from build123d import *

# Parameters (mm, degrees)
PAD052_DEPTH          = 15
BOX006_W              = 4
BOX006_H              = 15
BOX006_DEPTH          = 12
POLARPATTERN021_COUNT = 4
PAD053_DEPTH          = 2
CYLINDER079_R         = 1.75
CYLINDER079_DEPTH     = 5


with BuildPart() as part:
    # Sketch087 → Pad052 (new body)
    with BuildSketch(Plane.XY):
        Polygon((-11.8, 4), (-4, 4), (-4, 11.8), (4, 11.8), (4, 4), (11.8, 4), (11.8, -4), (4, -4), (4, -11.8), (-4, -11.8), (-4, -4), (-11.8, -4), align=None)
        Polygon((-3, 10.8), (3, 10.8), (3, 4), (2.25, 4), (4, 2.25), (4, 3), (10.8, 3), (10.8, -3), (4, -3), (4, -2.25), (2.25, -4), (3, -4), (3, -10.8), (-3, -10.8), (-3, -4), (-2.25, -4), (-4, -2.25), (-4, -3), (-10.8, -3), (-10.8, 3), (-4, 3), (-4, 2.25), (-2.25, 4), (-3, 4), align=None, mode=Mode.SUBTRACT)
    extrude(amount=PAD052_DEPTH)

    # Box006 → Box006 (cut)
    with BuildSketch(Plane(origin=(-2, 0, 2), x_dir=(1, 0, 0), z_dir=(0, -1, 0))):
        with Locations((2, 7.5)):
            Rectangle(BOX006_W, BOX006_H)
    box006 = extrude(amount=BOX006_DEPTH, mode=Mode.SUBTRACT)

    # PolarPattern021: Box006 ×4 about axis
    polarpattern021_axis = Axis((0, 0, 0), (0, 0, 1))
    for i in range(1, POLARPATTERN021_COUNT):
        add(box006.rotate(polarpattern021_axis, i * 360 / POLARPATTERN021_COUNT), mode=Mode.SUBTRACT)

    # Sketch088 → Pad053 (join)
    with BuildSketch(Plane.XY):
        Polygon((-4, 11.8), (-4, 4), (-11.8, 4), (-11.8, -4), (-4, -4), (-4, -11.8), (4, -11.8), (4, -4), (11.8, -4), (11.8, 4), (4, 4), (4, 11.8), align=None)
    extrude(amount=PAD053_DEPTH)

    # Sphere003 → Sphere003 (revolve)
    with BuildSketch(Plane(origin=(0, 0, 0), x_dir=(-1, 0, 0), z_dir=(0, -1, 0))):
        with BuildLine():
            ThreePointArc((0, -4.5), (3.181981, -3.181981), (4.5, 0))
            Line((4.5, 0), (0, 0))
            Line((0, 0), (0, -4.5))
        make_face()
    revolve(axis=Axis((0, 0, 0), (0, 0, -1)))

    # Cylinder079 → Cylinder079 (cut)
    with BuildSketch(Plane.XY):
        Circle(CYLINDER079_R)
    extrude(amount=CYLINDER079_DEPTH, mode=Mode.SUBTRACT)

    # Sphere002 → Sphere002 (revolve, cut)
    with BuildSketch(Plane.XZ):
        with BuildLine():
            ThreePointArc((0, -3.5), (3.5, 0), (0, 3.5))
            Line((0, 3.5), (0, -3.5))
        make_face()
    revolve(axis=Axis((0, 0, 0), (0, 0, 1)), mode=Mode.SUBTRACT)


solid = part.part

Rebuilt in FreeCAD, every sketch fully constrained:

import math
import FreeCAD as App
import Part
import Sketcher
from FreeCAD import Vector


def add_polygon(sketch, points):
    """Adds a closed chain of lines whose ends are joined by coincident constraints."""
    first, n = sketch.GeometryCount, len(points)
    for a, b in zip(points, points[1:] + points[:1]):
        sketch.addGeometry(Part.LineSegment(App.Vector(*a, 0), App.Vector(*b, 0)), False)
    for i in range(n):
        sketch.addConstraint(Sketcher.Constraint("Coincident", first + i, 2, first + (i + 1) % n, 1))

doc = App.newDocument("Part")
body = doc.addObject("PartDesign::Body", "Body")

# Sketch on XY plane
sketch1 = doc.addObject("Sketcher::SketchObject", "Sketch")
body.addObject(sketch1)
sketch1.AttachmentSupport = (doc.XY_Plane, [""])
sketch1.MapMode = "FlatFace"
add_polygon(sketch1, [(-4, 4), (-11.8, 4), (-11.8, -4), (-4, -4), (-4, -11.8), (4, -11.8), (4, -4), (11.8, -4), (11.8, 4), (4, 4), (4, 11.8), (-4, 11.8)])  # lines 0-11
add_polygon(sketch1, [(-3, 10.8), (3, 10.8), (3, 4), (2.2, 4), (4, 2.2), (4, 3), (10.8, 3), (10.8, -3), (4, -3), (4, -2.2), (2.2, -4), (3, -4), (3, -10.8), (-3, -10.8), (-3, -4), (-2.2, -4), (-4, -2.2), (-4, -3), (-10.8, -3), (-10.8, 3), (-4, 3), (-4, 2.2), (-2.2, 4), (-3, 4)])  # lines 12-35
sketch1.addConstraint(Sketcher.Constraint("Horizontal", 0))
sketch1.addConstraint(Sketcher.Constraint("Vertical", 1))
sketch1.addConstraint(Sketcher.Constraint("Horizontal", 2))
sketch1.addConstraint(Sketcher.Constraint("Vertical", 3))
sketch1.addConstraint(Sketcher.Constraint("Horizontal", 4))
sketch1.addConstraint(Sketcher.Constraint("Vertical", 5))
sketch1.addConstraint(Sketcher.Constraint("Horizontal", 6))
sketch1.addConstraint(Sketcher.Constraint("Vertical", 7))
sketch1.addConstraint(Sketcher.Constraint("Horizontal", 8))
sketch1.addConstraint(Sketcher.Constraint("Vertical", 9))
sketch1.addConstraint(Sketcher.Constraint("Horizontal", 10))
sketch1.addConstraint(Sketcher.Constraint("Vertical", 11))
sketch1.addConstraint(Sketcher.Constraint("Horizontal", 12))
sketch1.addConstraint(Sketcher.Constraint("Vertical", 13))
sketch1.addConstraint(Sketcher.Constraint("Horizontal", 14))
sketch1.addConstraint(Sketcher.Constraint("Vertical", 16))
sketch1.addConstraint(Sketcher.Constraint("Horizontal", 17))
sketch1.addConstraint(Sketcher.Constraint("Vertical", 18))
sketch1.addConstraint(Sketcher.Constraint("Horizontal", 19))
sketch1.addConstraint(Sketcher.Constraint("Vertical", 20))
sketch1.addConstraint(Sketcher.Constraint("Horizontal", 22))
sketch1.addConstraint(Sketcher.Constraint("Vertical", 23))
sketch1.addConstraint(Sketcher.Constraint("Horizontal", 24))
sketch1.addConstraint(Sketcher.Constraint("Vertical", 25))
sketch1.addConstraint(Sketcher.Constraint("Horizontal", 26))
sketch1.addConstraint(Sketcher.Constraint("Vertical", 28))
sketch1.addConstraint(Sketcher.Constraint("Horizontal", 29))
sketch1.addConstraint(Sketcher.Constraint("Vertical", 30))
sketch1.addConstraint(Sketcher.Constraint("Horizontal", 31))
sketch1.addConstraint(Sketcher.Constraint("Vertical", 32))
sketch1.addConstraint(Sketcher.Constraint("Horizontal", 34))
sketch1.addConstraint(Sketcher.Constraint("Vertical", 35))
sketch1.addConstraint(Sketcher.Constraint("Symmetric", 0, 2, 6, 2, -1, 1))
sketch1.addConstraint(Sketcher.Constraint("Symmetric", 2, 2, 8, 2, -1, 1))
sketch1.addConstraint(Sketcher.Constraint("Symmetric", 4, 2, 10, 2, -1, 1))
sketch1.addConstraint(Sketcher.Constraint("Symmetric", 12, 2, 24, 2, -1, 1))
sketch1.addConstraint(Sketcher.Constraint("Symmetric", 14, 2, 26, 2, -1, 1))
sketch1.addConstraint(Sketcher.Constraint("Symmetric", 15, 2, 27, 2, -1, 1))
sketch1.addConstraint(Sketcher.Constraint("Symmetric", 17, 2, 29, 2, -1, 1))
sketch1.addConstraint(Sketcher.Constraint("Symmetric", 19, 2, 31, 2, -1, 1))
sketch1.addConstraint(Sketcher.Constraint("Symmetric", 21, 2, 33, 2, -1, 1))
sketch1.addConstraint(Sketcher.Constraint("Symmetric", 2, 2, 5, 2, -2))
sketch1.addConstraint(Sketcher.Constraint("Symmetric", 22, 2, 25, 2, -2))
sketch1.addConstraint(Sketcher.Constraint("Symmetric", 20, 2, 27, 2, -2))
sketch1.addConstraint(Sketcher.Constraint("Perpendicular", 15, 21))
sketch1.addConstraint(Sketcher.Constraint("Perpendicular", 27, 33))
sketch1.addConstraint(Sketcher.Constraint("Horizontal", 11, 2, 13, 2))
sketch1.addConstraint(Sketcher.Constraint("Horizontal", 19, 2, 28, 2))
sketch1.addConstraint(Sketcher.Constraint("Vertical", 9, 2, 15, 2))
sketch1.addConstraint(Sketcher.Constraint("Vertical", 14, 2, 21, 2))
sketch1.addConstraint(Sketcher.Constraint("Vertical", 25, 2, 34, 2))
sketch1.addConstraint(Sketcher.Constraint("Equal", 10, 1))
sketch1.addConstraint(Sketcher.Constraint("Equal", 8, 3))
sketch1.addConstraint(Sketcher.Constraint("Equal", 31, 13))
sketch1.addConstraint(Sketcher.Constraint("Equal", 34, 16))
sketch1.addConstraint(Sketcher.Constraint("DistanceX", 4, 1, 4, 2, 8.0))
sketch1.addConstraint(Sketcher.Constraint("DistanceX", 12, 1, 12, 2, 6.0))
sketch1.addConstraint(Sketcher.Constraint("DistanceX", 0, 2, 0, 1, 7.8))
sketch1.addConstraint(Sketcher.Constraint("DistanceX", 17, 1, 17, 2, 6.8))
sketch1.addConstraint(Sketcher.Constraint("DistanceX", 14, 2, 14, 1, 0.75))
pad1 = doc.addObject("PartDesign::Pad", "Pad")
body.addObject(pad1)
pad1.Profile = sketch1
pad1.Length = 15

# Sketch on XZ plane
sketch2 = doc.addObject("Sketcher::SketchObject", "Sketch001")
body.addObject(sketch2)
sketch2.AttachmentSupport = (doc.XZ_Plane, [""])
sketch2.MapMode = "FlatFace"
add_polygon(sketch2, [(-2, 17), (-2, 2), (2, 2), (2, 17)])  # lines 0-3
sketch2.addConstraint(Sketcher.Constraint("Vertical", 0))
sketch2.addConstraint(Sketcher.Constraint("Horizontal", 1))
sketch2.addConstraint(Sketcher.Constraint("Vertical", 2))
sketch2.addConstraint(Sketcher.Constraint("Horizontal", 3))
sketch2.addConstraint(Sketcher.Constraint("DistanceX", 1, 1, 1, 2, 4.0))
sketch2.addConstraint(Sketcher.Constraint("DistanceY", 0, 2, 0, 1, 15.0))
sketch2.addConstraint(Sketcher.Constraint("DistanceX", 0, 2, -1, 1, 2.0))
sketch2.addConstraint(Sketcher.Constraint("DistanceY", -1, 1, 0, 2, 2.0))
pocket1 = doc.addObject("PartDesign::Pocket", "Pocket")
body.addObject(pocket1)
pocket1.Profile = sketch2
pocket1.Length = 12
pocket1.Reversed = True
doc.recompute()

polarpattern = doc.addObject("PartDesign::PolarPattern", "PolarPattern")
body.addObject(polarpattern)
polarpattern.Originals = [pocket1]
polarpattern.Axis = (doc.Z_Axis, [""])
polarpattern.Angle = 360
polarpattern.Occurrences = 4
body.Tip = polarpattern

# Sketch on XY plane
sketch3 = doc.addObject("Sketcher::SketchObject", "Sketch002")
body.addObject(sketch3)
sketch3.AttachmentSupport = (doc.XY_Plane, [""])
sketch3.MapMode = "FlatFace"
add_polygon(sketch3, [(-4, 12), (-4, 4), (-12, 4), (-12, -4), (-4, -4), (-4, -12), (4, -12), (4, -4), (12, -4), (12, 4), (4, 4), (4, 12)])  # lines 0-11
sketch3.addConstraint(Sketcher.Constraint("Vertical", 0))
sketch3.addConstraint(Sketcher.Constraint("Horizontal", 1))
sketch3.addConstraint(Sketcher.Constraint("Vertical", 2))
sketch3.addConstraint(Sketcher.Constraint("Horizontal", 3))
sketch3.addConstraint(Sketcher.Constraint("Vertical", 4))
sketch3.addConstraint(Sketcher.Constraint("Horizontal", 5))
sketch3.addConstraint(Sketcher.Constraint("Vertical", 6))
sketch3.addConstraint(Sketcher.Constraint("Horizontal", 7))
sketch3.addConstraint(Sketcher.Constraint("Vertical", 8))
sketch3.addConstraint(Sketcher.Constraint("Horizontal", 9))
sketch3.addConstraint(Sketcher.Constraint("Vertical", 10))
sketch3.addConstraint(Sketcher.Constraint("Horizontal", 11))
sketch3.addConstraint(Sketcher.Constraint("Symmetric", 0, 2, 6, 2, -1, 1))
sketch3.addConstraint(Sketcher.Constraint("Symmetric", 2, 2, 8, 2, -1, 1))
sketch3.addConstraint(Sketcher.Constraint("Symmetric", 4, 2, 10, 2, -1, 1))
sketch3.addConstraint(Sketcher.Constraint("Symmetric", 3, 2, 6, 2, -2))
sketch3.addConstraint(Sketcher.Constraint("Equal", 9, 0))
sketch3.addConstraint(Sketcher.Constraint("Equal", 11, 2))
sketch3.addConstraint(Sketcher.Constraint("DistanceX", 5, 1, 5, 2, 8.0))
sketch3.addConstraint(Sketcher.Constraint("DistanceX", 1, 2, 1, 1, 7.8))
pad2 = doc.addObject("PartDesign::Pad", "Pad001")
body.addObject(pad2)
pad2.Profile = sketch3
pad2.Length = 2

# Sketch on XZ plane
sketch4 = doc.addObject("Sketcher::SketchObject", "Sketch003")
body.addObject(sketch4)
sketch4.AttachmentSupport = (doc.XZ_Plane, [""])
sketch4.MapMode = "FlatFace"
sketch4.addGeometry(Part.ArcOfCircle(Part.Circle(Vector(0, 0, 0), Vector(0, 0, 1), 4.5), math.radians(90), math.radians(180)), False)
sketch4.addGeometry(Part.LineSegment(Vector(-4.5, 0, 0), Vector(0, 0, 0)), False)
sketch4.addGeometry(Part.LineSegment(Vector(0, 0, 0), Vector(0, 4.5, 0)), False)
sketch4.addConstraint(Sketcher.Constraint("Coincident", 0, 2, 1, 1))
sketch4.addConstraint(Sketcher.Constraint("Coincident", 1, 2, 2, 1))
sketch4.addConstraint(Sketcher.Constraint("Coincident", 2, 2, 0, 1))
sketch4.addConstraint(Sketcher.Constraint("Horizontal", 1))
sketch4.addConstraint(Sketcher.Constraint("Vertical", 2))
sketch4.addConstraint(Sketcher.Constraint("Coincident", 0, 3, -1, 1))
sketch4.addConstraint(Sketcher.Constraint("Coincident", 1, 2, -1, 1))
sketch4.addConstraint(Sketcher.Constraint("Radius", 0, 4.499998))
revolution = doc.addObject("PartDesign::Revolution", "Revolution")
body.addObject(revolution)
revolution.Profile = sketch4
revolution.ReferenceAxis = (sketch4, ["V_Axis"])
revolution.Angle = 360

# Sketch on XY plane
sketch5 = doc.addObject("Sketcher::SketchObject", "Sketch004")
body.addObject(sketch5)
sketch5.AttachmentSupport = (doc.XY_Plane, [""])
sketch5.MapMode = "FlatFace"
sketch5.addGeometry(Part.Circle(Vector(0, 0, 0), Vector(0, 0, 1), 1.8), False)
sketch5.addConstraint(Sketcher.Constraint("Coincident", 0, 3, -1, 1))
sketch5.addConstraint(Sketcher.Constraint("Diameter", 0, 3.5))
pocket2 = doc.addObject("PartDesign::Pocket", "Pocket001")
body.addObject(pocket2)
pocket2.Profile = sketch5
pocket2.Length = 5
pocket2.Reversed = True

# Sketch on XZ plane
sketch6 = doc.addObject("Sketcher::SketchObject", "Sketch005")
body.addObject(sketch6)
sketch6.AttachmentSupport = (doc.XZ_Plane, [""])
sketch6.MapMode = "FlatFace"
sketch6.addGeometry(Part.ArcOfCircle(Part.Circle(Vector(0, 0, 0), Vector(0, 0, 1), 3.5), math.radians(-90), math.radians(90)), False)
sketch6.addGeometry(Part.LineSegment(Vector(0, 3.5, 0), Vector(0, -3.5, 0)), False)
sketch6.addConstraint(Sketcher.Constraint("Coincident", 0, 1, 1, 2))
sketch6.addConstraint(Sketcher.Constraint("Coincident", 1, 1, 0, 2))
sketch6.addConstraint(Sketcher.Constraint("Vertical", 1))
sketch6.addConstraint(Sketcher.Constraint("Coincident", 0, 3, -1, 1))
sketch6.addConstraint(Sketcher.Constraint("PointOnObject", 0, 1, -2))
sketch6.addConstraint(Sketcher.Constraint("Radius", 0, 3.5))
groove = doc.addObject("PartDesign::Groove", "Groove")
body.addObject(groove)
groove.Profile = sketch6
groove.ReferenceAxis = (sketch6, ["V_Axis"])
groove.Angle = 360

doc.recompute()
